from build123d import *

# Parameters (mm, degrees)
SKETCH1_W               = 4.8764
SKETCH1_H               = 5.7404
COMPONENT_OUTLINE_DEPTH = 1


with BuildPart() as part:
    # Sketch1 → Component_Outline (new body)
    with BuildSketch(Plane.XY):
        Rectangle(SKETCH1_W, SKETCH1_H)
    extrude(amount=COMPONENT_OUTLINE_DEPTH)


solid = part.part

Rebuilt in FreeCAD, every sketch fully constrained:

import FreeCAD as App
import Part
import Sketcher
from FreeCAD import Vector


def add_polygon(sketch, points):
    """Adds a closed chain of lines whose ends are joined by coincident constraints."""
    first, n = sketch.GeometryCount, len(points)
    for a, b in zip(points, points[1:] + points[:1]):
        sketch.addGeometry(Part.LineSegment(App.Vector(*a, 0), App.Vector(*b, 0)), False)
    for i in range(n):
        sketch.addConstraint(Sketcher.Constraint("Coincident", first + i, 2, first + (i + 1) % n, 1))

doc = App.newDocument("Part")
body = doc.addObject("PartDesign::Body", "Body")

sketch1 = doc.addObject("Sketcher::SketchObject", "Sketch")
body.addObject(sketch1)
sketch1.AttachmentSupport = (doc.XY_Plane, [""])
sketch1.MapMode = "FlatFace"
add_polygon(sketch1, [(-2.4382, 2.8702), (-2.4382, -2.8702), (2.4382, -2.8702), (2.4382, 2.8702)])
sketch1.addConstraint(Sketcher.Constraint("Vertical", 0))
sketch1.addConstraint(Sketcher.Constraint("Horizontal", 1))
sketch1.addConstraint(Sketcher.Constraint("Vertical", 2))
sketch1.addConstraint(Sketcher.Constraint("Horizontal", 3))
sketch1.addConstraint(Sketcher.Constraint("Symmetric", 0, 2, 2, 2, -1, 1))
sketch1.addConstraint(Sketcher.Constraint("DistanceX", 1, 1, 1, 2, 4.8764))
sketch1.addConstraint(Sketcher.Constraint("DistanceY", 0, 2, 0, 1, 5.7404))
pad1 = doc.addObject("PartDesign::Pad", "Pad")
body.addObject(pad1)
pad1.Profile = sketch1
pad1.Length = 1

doc.recompute()
